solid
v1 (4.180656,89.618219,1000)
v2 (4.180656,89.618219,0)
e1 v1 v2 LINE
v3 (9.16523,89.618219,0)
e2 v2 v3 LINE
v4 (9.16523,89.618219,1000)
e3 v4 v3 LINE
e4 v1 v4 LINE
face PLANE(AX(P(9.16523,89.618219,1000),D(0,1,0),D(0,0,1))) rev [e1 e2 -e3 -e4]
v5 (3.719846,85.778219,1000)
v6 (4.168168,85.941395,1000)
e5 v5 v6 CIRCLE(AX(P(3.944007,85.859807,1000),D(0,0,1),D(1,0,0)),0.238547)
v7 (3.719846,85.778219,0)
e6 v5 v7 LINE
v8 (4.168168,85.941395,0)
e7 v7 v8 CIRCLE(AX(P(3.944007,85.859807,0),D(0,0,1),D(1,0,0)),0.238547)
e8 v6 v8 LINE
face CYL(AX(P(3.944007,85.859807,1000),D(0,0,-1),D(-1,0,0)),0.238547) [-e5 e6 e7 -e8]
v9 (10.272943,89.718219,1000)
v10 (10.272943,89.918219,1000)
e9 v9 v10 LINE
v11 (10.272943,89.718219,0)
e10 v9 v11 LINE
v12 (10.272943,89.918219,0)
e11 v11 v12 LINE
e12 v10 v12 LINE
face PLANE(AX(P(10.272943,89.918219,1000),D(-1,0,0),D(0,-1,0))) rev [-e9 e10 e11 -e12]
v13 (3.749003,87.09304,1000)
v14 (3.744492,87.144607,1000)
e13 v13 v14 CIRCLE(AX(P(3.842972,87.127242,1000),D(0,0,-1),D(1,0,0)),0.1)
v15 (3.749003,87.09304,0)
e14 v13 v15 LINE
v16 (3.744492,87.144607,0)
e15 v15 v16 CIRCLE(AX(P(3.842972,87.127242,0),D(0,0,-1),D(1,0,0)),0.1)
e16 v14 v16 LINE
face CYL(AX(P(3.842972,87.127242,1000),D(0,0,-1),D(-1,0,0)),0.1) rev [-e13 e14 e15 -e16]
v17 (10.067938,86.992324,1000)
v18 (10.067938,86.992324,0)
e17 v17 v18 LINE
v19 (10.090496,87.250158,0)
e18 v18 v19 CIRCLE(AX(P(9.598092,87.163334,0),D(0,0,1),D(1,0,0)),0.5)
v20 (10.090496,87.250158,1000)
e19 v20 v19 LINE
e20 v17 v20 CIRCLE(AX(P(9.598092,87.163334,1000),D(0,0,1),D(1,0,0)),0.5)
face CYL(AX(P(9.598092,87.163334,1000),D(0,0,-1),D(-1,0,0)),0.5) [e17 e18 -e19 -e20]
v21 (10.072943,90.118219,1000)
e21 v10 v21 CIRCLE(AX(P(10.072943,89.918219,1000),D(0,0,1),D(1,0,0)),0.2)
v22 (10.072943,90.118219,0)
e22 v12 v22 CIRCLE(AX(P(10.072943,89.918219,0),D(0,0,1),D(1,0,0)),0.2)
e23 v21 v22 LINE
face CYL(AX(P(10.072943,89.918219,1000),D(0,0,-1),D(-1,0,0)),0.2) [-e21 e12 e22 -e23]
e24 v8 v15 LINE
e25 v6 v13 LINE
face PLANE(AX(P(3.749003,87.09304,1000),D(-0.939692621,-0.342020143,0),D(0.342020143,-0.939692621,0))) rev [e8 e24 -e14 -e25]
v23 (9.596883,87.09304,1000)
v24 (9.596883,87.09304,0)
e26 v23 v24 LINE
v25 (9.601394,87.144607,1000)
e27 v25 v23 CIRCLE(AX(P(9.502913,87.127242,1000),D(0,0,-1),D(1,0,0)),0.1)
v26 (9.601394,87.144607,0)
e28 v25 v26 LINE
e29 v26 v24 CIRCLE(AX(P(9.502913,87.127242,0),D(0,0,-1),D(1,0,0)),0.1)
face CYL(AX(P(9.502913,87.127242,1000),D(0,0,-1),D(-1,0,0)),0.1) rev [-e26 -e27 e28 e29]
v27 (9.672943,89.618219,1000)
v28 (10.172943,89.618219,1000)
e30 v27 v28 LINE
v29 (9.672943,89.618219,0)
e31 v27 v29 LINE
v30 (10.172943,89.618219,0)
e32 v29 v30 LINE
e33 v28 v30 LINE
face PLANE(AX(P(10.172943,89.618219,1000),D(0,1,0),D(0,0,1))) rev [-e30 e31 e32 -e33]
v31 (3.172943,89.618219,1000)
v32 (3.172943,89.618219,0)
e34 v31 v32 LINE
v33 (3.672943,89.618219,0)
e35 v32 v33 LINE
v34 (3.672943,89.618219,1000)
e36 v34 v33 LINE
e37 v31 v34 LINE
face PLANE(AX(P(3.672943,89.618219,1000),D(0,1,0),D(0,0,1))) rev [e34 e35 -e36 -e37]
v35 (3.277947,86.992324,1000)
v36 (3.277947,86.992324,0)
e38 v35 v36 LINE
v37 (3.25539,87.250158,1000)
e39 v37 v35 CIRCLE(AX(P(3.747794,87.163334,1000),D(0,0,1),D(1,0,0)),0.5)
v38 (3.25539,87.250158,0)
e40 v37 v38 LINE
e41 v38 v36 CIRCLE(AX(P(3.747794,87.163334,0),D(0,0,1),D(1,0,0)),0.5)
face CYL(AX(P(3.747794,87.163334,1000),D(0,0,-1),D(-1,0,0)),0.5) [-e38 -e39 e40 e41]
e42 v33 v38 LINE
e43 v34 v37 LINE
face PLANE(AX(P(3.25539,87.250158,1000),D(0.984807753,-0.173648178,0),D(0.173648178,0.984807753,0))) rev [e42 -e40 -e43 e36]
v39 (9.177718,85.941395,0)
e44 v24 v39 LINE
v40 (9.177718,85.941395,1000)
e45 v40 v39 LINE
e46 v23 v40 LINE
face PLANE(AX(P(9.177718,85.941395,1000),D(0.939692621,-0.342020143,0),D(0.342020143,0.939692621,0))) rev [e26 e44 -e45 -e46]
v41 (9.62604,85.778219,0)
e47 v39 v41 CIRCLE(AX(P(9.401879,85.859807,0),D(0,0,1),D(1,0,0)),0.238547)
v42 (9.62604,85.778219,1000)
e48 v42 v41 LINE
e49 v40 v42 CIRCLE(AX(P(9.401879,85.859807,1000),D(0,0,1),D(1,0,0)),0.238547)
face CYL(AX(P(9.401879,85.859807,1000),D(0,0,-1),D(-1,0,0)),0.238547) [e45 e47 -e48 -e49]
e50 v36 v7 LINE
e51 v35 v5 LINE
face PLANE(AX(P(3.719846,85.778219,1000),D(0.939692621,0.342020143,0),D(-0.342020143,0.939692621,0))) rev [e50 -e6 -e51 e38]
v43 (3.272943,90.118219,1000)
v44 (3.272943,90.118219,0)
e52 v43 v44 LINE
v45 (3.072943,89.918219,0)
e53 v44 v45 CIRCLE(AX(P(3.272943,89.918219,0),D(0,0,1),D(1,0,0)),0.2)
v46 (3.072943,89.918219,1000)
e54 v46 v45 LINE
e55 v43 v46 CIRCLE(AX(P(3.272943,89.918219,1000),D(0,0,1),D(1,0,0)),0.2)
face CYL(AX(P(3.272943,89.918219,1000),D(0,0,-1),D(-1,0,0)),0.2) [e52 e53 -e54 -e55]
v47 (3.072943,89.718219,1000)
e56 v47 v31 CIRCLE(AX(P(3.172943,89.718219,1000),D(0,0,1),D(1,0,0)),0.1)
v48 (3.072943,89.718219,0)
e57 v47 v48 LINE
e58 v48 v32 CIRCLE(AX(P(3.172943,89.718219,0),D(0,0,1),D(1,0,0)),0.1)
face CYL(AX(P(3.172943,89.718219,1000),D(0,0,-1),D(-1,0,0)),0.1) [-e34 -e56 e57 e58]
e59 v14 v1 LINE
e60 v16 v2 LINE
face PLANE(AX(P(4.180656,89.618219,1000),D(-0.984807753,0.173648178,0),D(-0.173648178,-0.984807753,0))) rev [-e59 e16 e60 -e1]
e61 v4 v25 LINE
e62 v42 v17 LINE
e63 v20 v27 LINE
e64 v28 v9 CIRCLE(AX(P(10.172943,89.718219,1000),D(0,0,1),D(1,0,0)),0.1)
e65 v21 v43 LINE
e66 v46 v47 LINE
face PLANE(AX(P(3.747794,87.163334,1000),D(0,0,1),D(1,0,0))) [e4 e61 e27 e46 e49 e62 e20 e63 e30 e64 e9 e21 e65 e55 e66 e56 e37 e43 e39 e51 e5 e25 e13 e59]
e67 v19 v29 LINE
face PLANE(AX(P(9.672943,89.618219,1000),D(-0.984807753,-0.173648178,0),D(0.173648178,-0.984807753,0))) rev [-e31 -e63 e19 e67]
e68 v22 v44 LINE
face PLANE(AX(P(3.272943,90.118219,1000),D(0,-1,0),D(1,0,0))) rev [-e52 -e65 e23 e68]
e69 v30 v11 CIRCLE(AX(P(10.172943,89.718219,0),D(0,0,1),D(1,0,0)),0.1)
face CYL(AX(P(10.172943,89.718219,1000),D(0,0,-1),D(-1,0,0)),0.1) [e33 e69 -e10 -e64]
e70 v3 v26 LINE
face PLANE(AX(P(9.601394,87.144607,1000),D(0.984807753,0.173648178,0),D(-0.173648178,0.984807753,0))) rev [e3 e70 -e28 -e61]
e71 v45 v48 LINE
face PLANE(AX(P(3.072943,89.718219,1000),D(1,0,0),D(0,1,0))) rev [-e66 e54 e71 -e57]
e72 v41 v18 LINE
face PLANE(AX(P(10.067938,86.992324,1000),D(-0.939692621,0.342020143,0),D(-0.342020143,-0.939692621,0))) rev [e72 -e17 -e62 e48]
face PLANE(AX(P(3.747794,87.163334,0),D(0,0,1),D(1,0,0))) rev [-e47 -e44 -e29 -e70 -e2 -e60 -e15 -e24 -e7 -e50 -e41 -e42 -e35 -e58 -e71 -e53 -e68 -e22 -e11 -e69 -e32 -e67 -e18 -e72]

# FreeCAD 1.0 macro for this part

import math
import FreeCAD as App
import Part
import Sketcher

V = App.Vector
Q = App.Units.Quantity

doc = App.newDocument("Part")
body = doc.addObject("PartDesign::Body", "Body")

# Sketch on XY plane
sketch1 = body.newObject("Sketcher::SketchObject", "Sketch")
sketch1.AttachmentSupport = (doc.getObject("XY_Plane"), [""])
sketch1.MapMode = "FlatFace"
sketch1.addGeometry([
    Part.LineSegment(V(3.28, 86.99, 0), V(3.72, 85.78, 0)),  # 0
    Part.ArcOfCircle(Part.Circle(V(3.94, 85.86, 0), V(0, 0, 1), 0.24), math.radians(-160), math.radians(20)),  # 1
    Part.LineSegment(V(4.17, 85.94, 0), V(3.75, 87.09, 0)),  # 2
    Part.ArcOfCircle(Part.Circle(V(3.84, 87.13, 0), V(0, 0, 1), 0.1), math.radians(170), math.radians(200)),  # 3
    Part.LineSegment(V(3.74, 87.14, 0), V(4.18, 89.62, 0)),  # 4
    Part.LineSegment(V(4.18, 89.62, 0), V(9.17, 89.62, 0)),  # 5
    Part.LineSegment(V(9.17, 89.62, 0), V(9.6, 87.14, 0)),  # 6
    Part.ArcOfCircle(Part.Circle(V(9.5, 87.13, 0), V(0, 0, 1), 0.1), math.radians(-20), math.radians(10)),  # 7
    Part.LineSegment(V(9.6, 87.09, 0), V(9.18, 85.94, 0)),  # 8
    Part.ArcOfCircle(Part.Circle(V(9.4, 85.86, 0), V(0, 0, 1), 0.24), math.radians(160), math.radians(340)),  # 9
    Part.LineSegment(V(9.63, 85.78, 0), V(10.07, 86.99, 0)),  # 10
    Part.ArcOfCircle(Part.Circle(V(9.6, 87.16, 0), V(0, 0, 1), 0.5), math.radians(-20), math.radians(10)),  # 11
    Part.LineSegment(V(10.09, 87.25, 0), V(9.67, 89.62, 0)),  # 12
    Part.LineSegment(V(9.67, 89.62, 0), V(10.17, 89.62, 0)),  # 13
    Part.ArcOfCircle(Part.Circle(V(10.17, 89.72, 0), V(0, 0, 1), 0.1), math.radians(-90), math.radians(0)),  # 14
    Part.LineSegment(V(10.27, 89.72, 0), V(10.27, 89.92, 0)),  # 15
    Part.ArcOfCircle(Part.Circle(V(10.07, 89.92, 0), V(0, 0, 1), 0.2), math.radians(0), math.radians(90)),  # 16
    Part.LineSegment(V(10.07, 90.12, 0), V(3.27, 90.12, 0)),  # 17
    Part.ArcOfCircle(Part.Circle(V(3.27, 89.92, 0), V(0, 0, 1), 0.2), math.radians(90), math.radians(180)),  # 18
    Part.LineSegment(V(3.07, 89.92, 0), V(3.07, 89.72, 0)),  # 19
    Part.ArcOfCircle(Part.Circle(V(3.17, 89.72, 0), V(0, 0, 1), 0.1), math.radians(180), math.radians(270)),  # 20
    Part.LineSegment(V(3.17, 89.62, 0), V(3.67, 89.62, 0)),  # 21
    Part.LineSegment(V(3.67, 89.62, 0), V(3.26, 87.25, 0)),  # 22
    Part.ArcOfCircle(Part.Circle(V(3.75, 87.16, 0), V(0, 0, 1), 0.5), math.radians(170), math.radians(200)),  # 23
], False)
sketch1.addConstraint([
    Sketcher.Constraint("Tangent", 0, 2, 1, 1),
    Sketcher.Constraint("Tangent", 1, 2, 2, 1),
    Sketcher.Constraint("Tangent", 2, 2, 3, 2),
    Sketcher.Constraint("Tangent", 3, 1, 4, 1),
    Sketcher.Constraint("Coincident", 4, 2, 5, 1),
    Sketcher.Constraint("Coincident", 5, 2, 6, 1),
    Sketcher.Constraint("Tangent", 6, 2, 7, 2),
    Sketcher.Constraint("Tangent", 7, 1, 8, 1),
    Sketcher.Constraint("Tangent", 8, 2, 9, 1),
    Sketcher.Constraint("Tangent", 9, 2, 10, 1),
    Sketcher.Constraint("Tangent", 10, 2, 11, 1),
    Sketcher.Constraint("Tangent", 11, 2, 12, 1),
    Sketcher.Constraint("Coincident", 12, 2, 13, 1),
    Sketcher.Constraint("Tangent", 13, 2, 14, 1),
    Sketcher.Constraint("Tangent", 14, 2, 15, 1),
    Sketcher.Constraint("Tangent", 15, 2, 16, 1),
    Sketcher.Constraint("Tangent", 16, 2, 17, 1),
    Sketcher.Constraint("Tangent", 17, 2, 18, 1),
    Sketcher.Constraint("Tangent", 18, 2, 19, 1),
    Sketcher.Constraint("Tangent", 19, 2, 20, 1),
    Sketcher.Constraint("Tangent", 20, 2, 21, 1),
    Sketcher.Constraint("Coincident", 21, 2, 22, 1),
    Sketcher.Constraint("Tangent", 22, 2, 23, 1),
    Sketcher.Constraint("Tangent", 23, 2, 0, 1),
    Sketcher.Constraint("Horizontal", 5),
    Sketcher.Constraint("Horizontal", 13),
    Sketcher.Constraint("Vertical", 15),
    Sketcher.Constraint("Horizontal", 17),
    Sketcher.Constraint("Vertical", 19),
    Sketcher.Constraint("Horizontal", 21),
    Sketcher.Constraint("Equal", 3, 7),
    Sketcher.Constraint("Equal", 1, 9),
    Sketcher.Constraint("Equal", 7, 14),
    Sketcher.Constraint("Equal", 16, 18),
    Sketcher.Constraint("Equal", 14, 20),
    Sketcher.Constraint("Equal", 11, 23),
    Sketcher.Constraint("Parallel", 0, 2),
    Sketcher.Constraint("Parallel", 8, 10),
    Sketcher.Constraint("Parallel", 6, 12),
    Sketcher.Constraint("Parallel", 4, 22),
    Sketcher.Constraint("Horizontal", 3, 3, 7, 3),
    Sketcher.Constraint("Horizontal", 1, 3, 9, 3),
    Sketcher.Constraint("Horizontal", 14, 3, 20, 3),
    Sketcher.Constraint("Horizontal", 11, 3, 23, 3),
    Sketcher.Constraint("Horizontal", 3, 1, 6, 2),
    Sketcher.Constraint("Horizontal", 2, 2, 7, 1),
    Sketcher.Constraint("Horizontal", 5, 2, 12, 2),
    Sketcher.Constraint("Equal", 13, 21),
    Sketcher.Constraint("Radius", 3, Q("0.1 mm")),
    Sketcher.Constraint("Radius", 11, Q("0.5 mm")),
    Sketcher.Constraint("Radius", 16, Q("0.2 mm")),
    Sketcher.Constraint("Angle", 0, Q("-70 deg")),
    Sketcher.Constraint("Angle", 4, Q("80 deg")),
    Sketcher.Constraint("DistanceX", 13, 1, 13, 2, Q("0.5 mm")),
    Sketcher.Constraint("DistanceX", 17, 2, 17, 1, Q("6.8 mm")),
    Sketcher.Constraint("DistanceY", 15, 1, 15, 2, Q("0.2 mm")),
    Sketcher.Constraint("DistanceY", 0, 2, 20, 3, Q("3.94 mm")),
    Sketcher.Constraint("Radius", 1, Q("0.238547 mm")),
    Sketcher.Constraint("DistanceY", 1, 3, 3, 1, Q("1.2848 mm")),
    Sketcher.Constraint("DistanceX", 9, 2, 10, 2, Q("0.441898 mm")),
    Sketcher.Constraint("DistanceX", -1, 1, 9, 3, Q("9.401879 mm")),
    Sketcher.Constraint("DistanceY", -1, 1, 14, 3, Q("89.718219 mm")),
])
pad1 = body.newObject("PartDesign::Pad", "Pad")
pad1.Profile = sketch1
pad1.Length = 1000

doc.recompute()
